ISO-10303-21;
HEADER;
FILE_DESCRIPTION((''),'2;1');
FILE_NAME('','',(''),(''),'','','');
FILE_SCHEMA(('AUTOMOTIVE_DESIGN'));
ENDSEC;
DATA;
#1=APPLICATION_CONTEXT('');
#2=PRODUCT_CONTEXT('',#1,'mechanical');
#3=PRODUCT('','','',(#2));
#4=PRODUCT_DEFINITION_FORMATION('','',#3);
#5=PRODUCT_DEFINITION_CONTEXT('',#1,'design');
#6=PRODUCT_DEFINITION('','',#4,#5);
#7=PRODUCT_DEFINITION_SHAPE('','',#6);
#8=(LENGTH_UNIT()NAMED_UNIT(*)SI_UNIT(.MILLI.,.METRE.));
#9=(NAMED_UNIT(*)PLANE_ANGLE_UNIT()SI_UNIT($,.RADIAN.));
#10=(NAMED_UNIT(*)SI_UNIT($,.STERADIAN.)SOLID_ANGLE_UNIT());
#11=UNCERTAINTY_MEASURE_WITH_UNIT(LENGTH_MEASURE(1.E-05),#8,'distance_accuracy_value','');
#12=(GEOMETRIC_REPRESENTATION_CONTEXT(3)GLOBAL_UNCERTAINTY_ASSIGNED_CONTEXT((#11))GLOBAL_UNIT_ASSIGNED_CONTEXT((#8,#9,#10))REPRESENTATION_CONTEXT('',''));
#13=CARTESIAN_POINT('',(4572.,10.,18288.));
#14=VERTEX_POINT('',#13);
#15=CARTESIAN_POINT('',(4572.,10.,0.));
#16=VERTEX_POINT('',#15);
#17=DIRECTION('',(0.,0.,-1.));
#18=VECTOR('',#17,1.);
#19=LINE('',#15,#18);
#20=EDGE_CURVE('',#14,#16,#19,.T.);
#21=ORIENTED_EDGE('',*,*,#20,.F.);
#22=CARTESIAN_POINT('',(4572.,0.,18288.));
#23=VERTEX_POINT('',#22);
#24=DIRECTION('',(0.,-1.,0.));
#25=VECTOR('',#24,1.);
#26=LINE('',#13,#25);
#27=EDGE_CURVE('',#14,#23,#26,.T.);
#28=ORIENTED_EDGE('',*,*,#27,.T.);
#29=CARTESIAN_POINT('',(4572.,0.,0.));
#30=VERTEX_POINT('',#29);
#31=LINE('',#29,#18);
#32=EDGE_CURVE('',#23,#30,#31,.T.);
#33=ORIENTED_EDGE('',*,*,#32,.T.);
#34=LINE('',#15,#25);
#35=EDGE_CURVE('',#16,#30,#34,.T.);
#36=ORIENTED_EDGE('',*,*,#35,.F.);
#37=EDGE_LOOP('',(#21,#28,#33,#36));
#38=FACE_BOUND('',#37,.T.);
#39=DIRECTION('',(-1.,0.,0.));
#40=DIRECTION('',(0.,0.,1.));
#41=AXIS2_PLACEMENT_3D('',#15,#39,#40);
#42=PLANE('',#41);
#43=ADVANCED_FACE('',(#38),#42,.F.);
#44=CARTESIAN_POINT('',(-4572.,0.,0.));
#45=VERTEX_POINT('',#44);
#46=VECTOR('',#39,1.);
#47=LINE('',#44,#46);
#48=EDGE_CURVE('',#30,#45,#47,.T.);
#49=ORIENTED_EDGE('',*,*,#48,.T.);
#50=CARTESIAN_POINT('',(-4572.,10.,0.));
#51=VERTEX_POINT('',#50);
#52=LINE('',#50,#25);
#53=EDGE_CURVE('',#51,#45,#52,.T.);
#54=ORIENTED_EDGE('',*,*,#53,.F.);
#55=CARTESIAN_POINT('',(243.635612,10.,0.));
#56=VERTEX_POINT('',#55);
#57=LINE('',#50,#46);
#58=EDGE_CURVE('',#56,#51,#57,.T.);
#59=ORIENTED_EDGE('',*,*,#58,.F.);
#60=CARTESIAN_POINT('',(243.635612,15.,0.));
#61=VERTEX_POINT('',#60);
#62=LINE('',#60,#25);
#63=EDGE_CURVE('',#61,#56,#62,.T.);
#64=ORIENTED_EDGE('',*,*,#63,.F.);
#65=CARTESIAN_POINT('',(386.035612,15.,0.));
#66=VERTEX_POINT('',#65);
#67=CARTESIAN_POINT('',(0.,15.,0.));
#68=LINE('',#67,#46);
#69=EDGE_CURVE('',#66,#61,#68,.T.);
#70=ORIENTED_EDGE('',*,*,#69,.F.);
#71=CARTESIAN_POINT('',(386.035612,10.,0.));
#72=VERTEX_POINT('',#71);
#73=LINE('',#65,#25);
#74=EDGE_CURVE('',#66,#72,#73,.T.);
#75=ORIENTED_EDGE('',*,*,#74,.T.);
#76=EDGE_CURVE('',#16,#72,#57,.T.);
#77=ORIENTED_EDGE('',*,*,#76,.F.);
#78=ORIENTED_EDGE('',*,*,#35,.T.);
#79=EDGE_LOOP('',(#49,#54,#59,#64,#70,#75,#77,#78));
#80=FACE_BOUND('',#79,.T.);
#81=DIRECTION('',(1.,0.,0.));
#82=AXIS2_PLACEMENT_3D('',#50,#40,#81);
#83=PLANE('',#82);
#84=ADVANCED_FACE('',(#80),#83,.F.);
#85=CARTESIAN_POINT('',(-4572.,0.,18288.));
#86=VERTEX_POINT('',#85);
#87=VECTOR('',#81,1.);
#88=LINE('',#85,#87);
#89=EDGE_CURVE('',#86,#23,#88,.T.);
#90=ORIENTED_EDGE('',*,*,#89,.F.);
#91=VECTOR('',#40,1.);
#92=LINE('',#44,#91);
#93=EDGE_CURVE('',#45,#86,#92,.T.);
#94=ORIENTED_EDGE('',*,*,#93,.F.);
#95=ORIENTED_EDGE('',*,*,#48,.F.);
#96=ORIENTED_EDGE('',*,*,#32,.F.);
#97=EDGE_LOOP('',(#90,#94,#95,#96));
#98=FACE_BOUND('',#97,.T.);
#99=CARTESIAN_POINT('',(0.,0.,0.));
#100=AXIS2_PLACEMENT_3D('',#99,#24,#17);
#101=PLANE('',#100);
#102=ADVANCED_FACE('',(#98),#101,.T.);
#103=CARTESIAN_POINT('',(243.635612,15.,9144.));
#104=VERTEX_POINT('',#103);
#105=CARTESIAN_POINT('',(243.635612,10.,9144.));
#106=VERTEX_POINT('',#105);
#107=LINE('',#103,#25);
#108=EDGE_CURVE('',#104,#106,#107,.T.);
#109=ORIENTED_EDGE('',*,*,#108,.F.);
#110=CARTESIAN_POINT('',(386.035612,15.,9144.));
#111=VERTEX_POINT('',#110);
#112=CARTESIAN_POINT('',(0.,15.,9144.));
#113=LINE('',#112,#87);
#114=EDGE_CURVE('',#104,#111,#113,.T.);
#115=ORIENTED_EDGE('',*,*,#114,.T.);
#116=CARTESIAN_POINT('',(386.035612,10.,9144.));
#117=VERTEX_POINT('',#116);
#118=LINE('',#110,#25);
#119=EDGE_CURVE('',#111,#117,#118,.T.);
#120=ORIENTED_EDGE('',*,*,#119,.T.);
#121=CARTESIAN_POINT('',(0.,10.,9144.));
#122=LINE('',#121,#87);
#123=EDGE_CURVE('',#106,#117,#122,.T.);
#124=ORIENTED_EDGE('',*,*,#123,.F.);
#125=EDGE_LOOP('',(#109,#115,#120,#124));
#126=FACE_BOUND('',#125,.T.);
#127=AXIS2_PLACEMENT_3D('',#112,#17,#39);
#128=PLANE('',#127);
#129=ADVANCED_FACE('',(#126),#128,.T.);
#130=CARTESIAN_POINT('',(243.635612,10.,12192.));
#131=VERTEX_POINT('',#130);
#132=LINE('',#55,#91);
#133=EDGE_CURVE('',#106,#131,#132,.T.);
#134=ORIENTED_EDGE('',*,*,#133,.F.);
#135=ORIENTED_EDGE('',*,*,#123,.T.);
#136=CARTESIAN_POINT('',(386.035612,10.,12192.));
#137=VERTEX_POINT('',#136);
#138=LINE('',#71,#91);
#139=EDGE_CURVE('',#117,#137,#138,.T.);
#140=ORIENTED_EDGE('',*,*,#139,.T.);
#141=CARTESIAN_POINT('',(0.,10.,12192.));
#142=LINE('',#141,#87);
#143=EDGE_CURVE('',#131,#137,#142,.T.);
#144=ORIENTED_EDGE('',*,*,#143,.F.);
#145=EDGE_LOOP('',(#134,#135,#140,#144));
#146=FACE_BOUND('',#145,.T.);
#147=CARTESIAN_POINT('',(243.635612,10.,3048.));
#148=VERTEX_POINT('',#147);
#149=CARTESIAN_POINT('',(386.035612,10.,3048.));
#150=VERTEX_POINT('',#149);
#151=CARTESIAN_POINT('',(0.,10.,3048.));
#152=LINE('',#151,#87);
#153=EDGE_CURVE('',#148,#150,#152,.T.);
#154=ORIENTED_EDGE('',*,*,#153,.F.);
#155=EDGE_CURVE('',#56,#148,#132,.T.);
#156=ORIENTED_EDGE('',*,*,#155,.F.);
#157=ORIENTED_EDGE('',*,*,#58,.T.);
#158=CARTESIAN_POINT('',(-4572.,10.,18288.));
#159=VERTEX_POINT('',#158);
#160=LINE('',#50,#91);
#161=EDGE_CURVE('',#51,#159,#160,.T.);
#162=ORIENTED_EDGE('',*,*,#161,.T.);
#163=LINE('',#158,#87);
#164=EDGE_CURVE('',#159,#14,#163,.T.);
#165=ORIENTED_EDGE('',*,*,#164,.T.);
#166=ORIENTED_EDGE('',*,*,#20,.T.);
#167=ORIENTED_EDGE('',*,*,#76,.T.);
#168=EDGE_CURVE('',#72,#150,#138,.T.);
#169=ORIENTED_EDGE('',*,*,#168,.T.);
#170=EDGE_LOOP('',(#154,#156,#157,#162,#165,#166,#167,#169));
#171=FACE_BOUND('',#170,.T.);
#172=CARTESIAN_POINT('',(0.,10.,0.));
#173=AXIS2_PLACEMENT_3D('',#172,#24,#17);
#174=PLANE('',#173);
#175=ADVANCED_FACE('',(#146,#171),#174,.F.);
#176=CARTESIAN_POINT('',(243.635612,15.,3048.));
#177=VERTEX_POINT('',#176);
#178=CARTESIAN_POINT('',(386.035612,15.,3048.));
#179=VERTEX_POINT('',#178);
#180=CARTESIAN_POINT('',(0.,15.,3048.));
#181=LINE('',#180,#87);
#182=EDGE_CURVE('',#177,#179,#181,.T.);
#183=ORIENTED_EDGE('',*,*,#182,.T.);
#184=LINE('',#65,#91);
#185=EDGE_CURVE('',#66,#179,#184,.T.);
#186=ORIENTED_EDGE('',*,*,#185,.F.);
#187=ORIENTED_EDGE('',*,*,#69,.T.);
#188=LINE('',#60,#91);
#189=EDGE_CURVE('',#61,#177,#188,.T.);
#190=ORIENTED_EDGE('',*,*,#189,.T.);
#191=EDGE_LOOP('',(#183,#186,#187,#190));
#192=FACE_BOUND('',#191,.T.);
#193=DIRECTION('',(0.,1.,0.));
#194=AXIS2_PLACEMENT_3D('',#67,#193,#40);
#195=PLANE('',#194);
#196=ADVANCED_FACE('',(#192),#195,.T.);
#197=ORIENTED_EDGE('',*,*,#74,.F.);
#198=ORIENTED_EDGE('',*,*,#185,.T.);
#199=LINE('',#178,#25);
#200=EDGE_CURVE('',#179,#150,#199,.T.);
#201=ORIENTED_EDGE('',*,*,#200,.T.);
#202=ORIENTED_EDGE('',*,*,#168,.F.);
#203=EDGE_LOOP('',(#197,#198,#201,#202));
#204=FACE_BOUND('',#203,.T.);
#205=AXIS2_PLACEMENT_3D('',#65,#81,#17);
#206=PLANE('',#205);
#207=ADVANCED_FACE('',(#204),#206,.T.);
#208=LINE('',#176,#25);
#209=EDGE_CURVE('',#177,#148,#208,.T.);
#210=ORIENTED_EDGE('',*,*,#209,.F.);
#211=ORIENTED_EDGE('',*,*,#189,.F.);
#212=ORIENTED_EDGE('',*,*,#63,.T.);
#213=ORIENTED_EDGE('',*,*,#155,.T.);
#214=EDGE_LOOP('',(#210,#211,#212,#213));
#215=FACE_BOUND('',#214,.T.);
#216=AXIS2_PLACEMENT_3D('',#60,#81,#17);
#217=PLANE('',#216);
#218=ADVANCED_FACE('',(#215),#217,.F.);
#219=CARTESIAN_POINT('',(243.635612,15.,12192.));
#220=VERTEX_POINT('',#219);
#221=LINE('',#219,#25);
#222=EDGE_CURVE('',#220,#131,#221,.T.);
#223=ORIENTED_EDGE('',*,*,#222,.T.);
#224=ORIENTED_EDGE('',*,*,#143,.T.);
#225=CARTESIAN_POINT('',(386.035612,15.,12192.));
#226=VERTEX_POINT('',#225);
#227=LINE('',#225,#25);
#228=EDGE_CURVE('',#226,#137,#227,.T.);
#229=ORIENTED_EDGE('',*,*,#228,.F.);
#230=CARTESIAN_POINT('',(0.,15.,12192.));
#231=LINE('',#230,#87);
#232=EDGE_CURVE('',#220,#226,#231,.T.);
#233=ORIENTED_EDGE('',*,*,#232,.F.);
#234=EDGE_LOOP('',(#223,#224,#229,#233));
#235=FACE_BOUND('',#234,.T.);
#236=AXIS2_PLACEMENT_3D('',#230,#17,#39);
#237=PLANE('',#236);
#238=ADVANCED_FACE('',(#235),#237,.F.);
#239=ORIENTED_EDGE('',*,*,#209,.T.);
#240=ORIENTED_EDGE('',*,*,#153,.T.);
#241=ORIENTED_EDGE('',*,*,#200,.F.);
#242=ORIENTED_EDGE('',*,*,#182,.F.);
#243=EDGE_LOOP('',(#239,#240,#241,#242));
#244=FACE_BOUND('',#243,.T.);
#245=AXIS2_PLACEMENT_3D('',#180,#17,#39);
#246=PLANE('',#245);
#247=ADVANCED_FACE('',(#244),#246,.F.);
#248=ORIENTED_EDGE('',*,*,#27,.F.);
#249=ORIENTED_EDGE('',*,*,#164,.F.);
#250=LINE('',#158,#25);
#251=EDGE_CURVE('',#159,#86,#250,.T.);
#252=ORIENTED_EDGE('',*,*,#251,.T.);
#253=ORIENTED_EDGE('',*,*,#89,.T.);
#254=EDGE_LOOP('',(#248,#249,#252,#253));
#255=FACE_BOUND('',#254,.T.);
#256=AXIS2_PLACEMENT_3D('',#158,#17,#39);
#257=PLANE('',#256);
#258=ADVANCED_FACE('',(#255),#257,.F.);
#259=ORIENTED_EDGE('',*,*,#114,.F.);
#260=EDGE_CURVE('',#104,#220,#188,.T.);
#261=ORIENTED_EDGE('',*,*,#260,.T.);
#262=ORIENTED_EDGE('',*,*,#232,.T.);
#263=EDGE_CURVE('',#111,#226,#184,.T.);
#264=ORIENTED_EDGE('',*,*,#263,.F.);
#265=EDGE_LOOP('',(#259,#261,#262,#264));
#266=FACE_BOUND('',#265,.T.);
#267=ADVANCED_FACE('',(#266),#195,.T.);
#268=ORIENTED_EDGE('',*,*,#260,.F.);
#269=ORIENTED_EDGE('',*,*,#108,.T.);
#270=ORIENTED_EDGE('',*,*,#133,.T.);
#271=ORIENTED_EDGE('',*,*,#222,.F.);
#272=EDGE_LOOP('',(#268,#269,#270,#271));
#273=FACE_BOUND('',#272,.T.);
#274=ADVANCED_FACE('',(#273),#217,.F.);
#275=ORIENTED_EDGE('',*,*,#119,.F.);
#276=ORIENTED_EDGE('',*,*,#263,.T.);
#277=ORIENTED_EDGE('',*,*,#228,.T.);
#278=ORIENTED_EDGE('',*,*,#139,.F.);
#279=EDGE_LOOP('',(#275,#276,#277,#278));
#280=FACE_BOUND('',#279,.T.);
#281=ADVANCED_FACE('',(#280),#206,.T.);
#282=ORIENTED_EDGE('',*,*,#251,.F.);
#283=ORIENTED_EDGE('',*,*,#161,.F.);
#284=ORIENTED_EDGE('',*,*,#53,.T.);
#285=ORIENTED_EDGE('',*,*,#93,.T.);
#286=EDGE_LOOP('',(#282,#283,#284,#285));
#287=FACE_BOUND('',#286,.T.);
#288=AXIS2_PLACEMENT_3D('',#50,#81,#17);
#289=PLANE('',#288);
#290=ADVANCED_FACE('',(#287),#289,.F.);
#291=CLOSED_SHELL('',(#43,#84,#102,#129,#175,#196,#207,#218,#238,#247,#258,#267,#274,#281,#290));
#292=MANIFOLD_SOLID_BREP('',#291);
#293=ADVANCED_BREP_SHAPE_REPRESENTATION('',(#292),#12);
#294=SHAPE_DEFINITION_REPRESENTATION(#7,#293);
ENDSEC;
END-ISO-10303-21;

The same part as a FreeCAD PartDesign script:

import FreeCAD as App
import Part
import Sketcher
from FreeCAD import Vector

doc = App.newDocument("Part")
body = doc.addObject("PartDesign::Body", "Body")

# Sketch on XZ plane
sketch1 = body.newObject("Sketcher::SketchObject", "Sketch")
sketch1.AttachmentSupport = (doc.getObject("XZ_Plane"), [""])
sketch1.MapMode = "FlatFace"
sketch1.addGeometry(Part.LineSegment(Vector(-4572, 0, 0), Vector(-4572, 18288, 0)), False)
sketch1.addGeometry(Part.LineSegment(Vector(-4572, 18288, 0), Vector(4572, 18288, 0)), False)
sketch1.addGeometry(Part.LineSegment(Vector(4572, 18288, 0), Vector(4572, 0, 0)), False)
sketch1.addGeometry(Part.LineSegment(Vector(4572, 0, 0), Vector(-4572, 0, 0)), False)
sketch1.addConstraint(Sketcher.Constraint("Coincident", 0, 2, 1, 1))
sketch1.addConstraint(Sketcher.Constraint("Coincident", 1, 2, 2, 1))
sketch1.addConstraint(Sketcher.Constraint("Coincident", 2, 2, 3, 1))
sketch1.addConstraint(Sketcher.Constraint("Coincident", 3, 2, 0, 1))
sketch1.addConstraint(Sketcher.Constraint("Vertical", 0))
sketch1.addConstraint(Sketcher.Constraint("Horizontal", 1))
sketch1.addConstraint(Sketcher.Constraint("Vertical", 2))
sketch1.addConstraint(Sketcher.Constraint("Horizontal", 3))
sketch1.addConstraint(Sketcher.Constraint("Symmetric", 2, 2, 3, 2, -1, 1))
sketch1.addConstraint(Sketcher.Constraint("DistanceX", 1, 1, 1, 2, 9144.0))
sketch1.addConstraint(Sketcher.Constraint("DistanceY", 0, 1, 0, 2, 18288.0))
pad1 = body.newObject("PartDesign::Pad", "Pad")
pad1.Profile = sketch1
pad1.Length = 10
pad1.Reversed = True

# Sketch on XZ plane
sketch2 = body.newObject("Sketcher::SketchObject", "Sketch001")
sketch2.AttachmentSupport = (doc.getObject("XZ_Plane"), [""])
sketch2.MapMode = "FlatFace"
sketch2.AttachmentOffset = App.Placement(Vector(0, 0, -10), App.Rotation())
sketch2.addGeometry(Part.LineSegment(Vector(243.635612, 9144, 0), Vector(243.635612, 12192, 0)), False)
sketch2.addGeometry(Part.LineSegment(Vector(243.635612, 12192, 0), Vector(386.035612, 12192, 0)), False)
sketch2.addGeometry(Part.LineSegment(Vector(386.035612, 12192, 0), Vector(386.035612, 9144, 0)), False)
sketch2.addGeometry(Part.LineSegment(Vector(386.035612, 9144, 0), Vector(243.635612, 9144, 0)), False)
sketch2.addGeometry(Part.LineSegment(Vector(243.635612, 0, 0), Vector(243.635612, 3048, 0)), False)
sketch2.addGeometry(Part.LineSegment(Vector(243.635612, 3048, 0), Vector(386.035612, 3048, 0)), False)
sketch2.addGeometry(Part.LineSegment(Vector(386.035612, 3048, 0), Vector(386.035612, 0, 0)), False)
sketch2.addGeometry(Part.LineSegment(Vector(386.035612, 0, 0), Vector(243.635612, 0, 0)), False)
sketch2.addConstraint(Sketcher.Constraint("Coincident", 0, 2, 1, 1))
sketch2.addConstraint(Sketcher.Constraint("Coincident", 1, 2, 2, 1))
sketch2.addConstraint(Sketcher.Constraint("Coincident", 2, 2, 3, 1))
sketch2.addConstraint(Sketcher.Constraint("Coincident", 3, 2, 0, 1))
sketch2.addConstraint(Sketcher.Constraint("Coincident", 4, 2, 5, 1))
sketch2.addConstraint(Sketcher.Constraint("Coincident", 5, 2, 6, 1))
sketch2.addConstraint(Sketcher.Constraint("Coincident", 6, 2, 7, 1))
sketch2.addConstraint(Sketcher.Constraint("Coincident", 7, 2, 4, 1))
sketch2.addConstraint(Sketcher.Constraint("Vertical", 0))
sketch2.addConstraint(Sketcher.Constraint("Horizontal", 1))
sketch2.addConstraint(Sketcher.Constraint("Vertical", 2))
sketch2.addConstraint(Sketcher.Constraint("Horizontal", 3))
sketch2.addConstraint(Sketcher.Constraint("Vertical", 4))
sketch2.addConstraint(Sketcher.Constraint("Horizontal", 5))
sketch2.addConstraint(Sketcher.Constraint("Vertical", 6))
sketch2.addConstraint(Sketcher.Constraint("Horizontal", 7))
sketch2.addConstraint(Sketcher.Constraint("PointOnObject", 6, 2, -1))
sketch2.addConstraint(Sketcher.Constraint("Vertical", 3, 2, 4, 2))
sketch2.addConstraint(Sketcher.Constraint("Vertical", 2, 2, 5, 2))
sketch2.addConstraint(Sketcher.Constraint("Equal", 2, 4))
sketch2.addConstraint(Sketcher.Constraint("DistanceY", 0, 1, 0, 2, 3048.0))
sketch2.addConstraint(Sketcher.Constraint("DistanceX", 1, 1, 1, 2, 142.4))
sketch2.addConstraint(Sketcher.Constraint("DistanceY", -1, 1, 0, 2, 12192.0))
sketch2.addConstraint(Sketcher.Constraint("DistanceX", -1, 1, 0, 2, 243.635612))
pad2 = body.newObject("PartDesign::Pad", "Pad001")
pad2.Profile = sketch2
pad2.Length = 5
pad2.Reversed = True

doc.recompute()
